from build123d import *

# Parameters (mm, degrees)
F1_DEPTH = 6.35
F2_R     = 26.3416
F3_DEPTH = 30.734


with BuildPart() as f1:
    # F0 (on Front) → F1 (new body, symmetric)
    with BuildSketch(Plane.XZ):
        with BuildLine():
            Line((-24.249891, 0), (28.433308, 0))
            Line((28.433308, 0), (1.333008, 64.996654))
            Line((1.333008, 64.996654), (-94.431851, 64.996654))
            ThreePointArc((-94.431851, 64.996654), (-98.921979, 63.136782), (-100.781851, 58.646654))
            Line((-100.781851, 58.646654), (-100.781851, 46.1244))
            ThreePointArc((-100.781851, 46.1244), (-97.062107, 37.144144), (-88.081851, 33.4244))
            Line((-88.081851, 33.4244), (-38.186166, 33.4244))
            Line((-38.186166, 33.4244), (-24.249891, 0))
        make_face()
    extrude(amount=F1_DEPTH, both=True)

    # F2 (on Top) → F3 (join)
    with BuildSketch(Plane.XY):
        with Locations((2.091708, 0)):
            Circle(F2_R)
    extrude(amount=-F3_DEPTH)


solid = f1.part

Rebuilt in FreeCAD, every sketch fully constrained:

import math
import FreeCAD as App
import Part
import Sketcher

V = App.Vector
Q = App.Units.Quantity

doc = App.newDocument("Part")
body = doc.addObject("PartDesign::Body", "Body")

sketch1 = body.newObject("Sketcher::SketchObject", "Sketch")
sketch1.AttachmentSupport = (doc.getObject("XZ_Plane"), [""])
sketch1.MapMode = "FlatFace"
sketch1.addGeometry(Part.LineSegment(V(-24.249891, 0, 0), V(28.433308, 0, 0)), False)
sketch1.addGeometry(Part.LineSegment(V(28.433308, 0, 0), V(1.333008, 64.996654, 0)), False)
sketch1.addGeometry(Part.LineSegment(V(1.333008, 64.996654, 0), V(-94.431851, 64.996654, 0)), False)
sketch1.addGeometry(Part.ArcOfCircle(Part.Circle(V(-94.431851, 58.646654, 0), V(0, 0, 1), 6.35), math.radians(90.000002), math.radians(179.999998)), False)
sketch1.addGeometry(Part.LineSegment(V(-100.781851, 58.646654, 0), V(-100.781851, 46.1244, 0)), False)
sketch1.addGeometry(Part.ArcOfCircle(Part.Circle(V(-88.081851, 46.1244, 0), V(0, 0, 1), 12.7), math.radians(-179.999998), math.radians(-90.000002)), False)
sketch1.addGeometry(Part.LineSegment(V(-88.081851, 33.4244, 0), V(-38.186166, 33.4244, 0)), False)
sketch1.addGeometry(Part.LineSegment(V(-38.186166, 33.4244, 0), V(-24.249891, 0, 0)), False)
sketch1.addConstraint(Sketcher.Constraint("Coincident", 0, 2, 1, 1))
sketch1.addConstraint(Sketcher.Constraint("Coincident", 1, 2, 2, 1))
sketch1.addConstraint(Sketcher.Constraint("Tangent", 2, 2, 3, 1))
sketch1.addConstraint(Sketcher.Constraint("Tangent", 3, 2, 4, 1))
sketch1.addConstraint(Sketcher.Constraint("Tangent", 4, 2, 5, 1))
sketch1.addConstraint(Sketcher.Constraint("Tangent", 5, 2, 6, 1))
sketch1.addConstraint(Sketcher.Constraint("Coincident", 6, 2, 7, 1))
sketch1.addConstraint(Sketcher.Constraint("Coincident", 7, 2, 0, 1))
sketch1.addConstraint(Sketcher.Constraint("Horizontal", 0))
sketch1.addConstraint(Sketcher.Constraint("Horizontal", 2))
sketch1.addConstraint(Sketcher.Constraint("Vertical", 4))
sketch1.addConstraint(Sketcher.Constraint("Horizontal", 6))
sketch1.addConstraint(Sketcher.Constraint("PointOnObject", 0, 2, -1))
sketch1.addConstraint(Sketcher.Constraint("Parallel", 1, 7))
sketch1.addConstraint(Sketcher.Constraint("Radius", 5, Q("0.5 in")))
sketch1.addConstraint(Sketcher.Constraint("Radius", 3, Q("0.25 in")))
sketch1.addConstraint(Sketcher.Constraint("DistanceX", 0, 1, 0, 2, 52.683199))
sketch1.addConstraint(Sketcher.Constraint("Distance", 7, 36.213399))
sketch1.addConstraint(Sketcher.Constraint("DistanceX", 2, 2, 2, 1, 95.764859))
sketch1.addConstraint(Sketcher.Constraint("DistanceY", -1, 1, 5, 3, 46.1244))
sketch1.addConstraint(Sketcher.Constraint("DistanceX", 1, 2, 0, 2, 27.1003))
sketch1.addConstraint(Sketcher.Constraint("DistanceX", 3, 3, -1, 1, 94.431851))
pad1 = body.newObject("PartDesign::Pad", "Pad")
pad1.Profile = sketch1
pad1.Length = Q("0.5 in")
pad1.Midplane = True

sketch2 = body.newObject("Sketcher::SketchObject", "Sketch001")
sketch2.AttachmentSupport = (doc.getObject("XY_Plane"), [""])
sketch2.MapMode = "FlatFace"
sketch2.addGeometry(Part.Circle(V(2.091708, 0, 0), V(0, 0, 1), 26.3416), False)
sketch2.addConstraint(Sketcher.Constraint("PointOnObject", 0, 3, -1))
sketch2.addConstraint(Sketcher.Constraint("Diameter", 0, 52.6832))
sketch2.addConstraint(Sketcher.Constraint("DistanceX", -1, 1, 0, 3, 2.091708))
pad2 = body.newObject("PartDesign::Pad", "Pad001")
pad2.Profile = sketch2
pad2.Length = Q("1.21 in")
pad2.Reversed = True

doc.recompute()
